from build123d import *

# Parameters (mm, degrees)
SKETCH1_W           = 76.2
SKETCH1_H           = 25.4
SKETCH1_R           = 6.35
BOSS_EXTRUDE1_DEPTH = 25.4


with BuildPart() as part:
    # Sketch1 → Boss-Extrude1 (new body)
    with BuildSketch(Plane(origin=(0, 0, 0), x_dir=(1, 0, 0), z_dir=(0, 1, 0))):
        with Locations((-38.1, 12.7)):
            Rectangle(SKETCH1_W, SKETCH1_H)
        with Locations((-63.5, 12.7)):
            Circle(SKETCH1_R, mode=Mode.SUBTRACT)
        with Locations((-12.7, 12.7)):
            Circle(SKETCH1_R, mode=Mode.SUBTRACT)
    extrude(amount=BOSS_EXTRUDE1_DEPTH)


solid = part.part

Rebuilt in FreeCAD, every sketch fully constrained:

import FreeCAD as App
import Part
import Sketcher
Q = App.Units.Quantity

doc = App.newDocument("Part")
body = doc.addObject("PartDesign::Body", "Body")

sketch1 = doc.addObject("Sketcher::SketchObject", "Sketch")
body.addObject(sketch1)
sketch1.AttachmentSupport = (doc.XZ_Plane, [""])
sketch1.MapMode = "FlatFace"
sketch1.addGeometry([
    Part.LineSegment(App.Vector(-76.2, -25.4, 0), App.Vector(-76.2, 0, 0)),
    Part.LineSegment(App.Vector(-76.2, 0, 0), App.Vector(0, 0, 0)),
    Part.LineSegment(App.Vector(0, 0, 0), App.Vector(0, -25.4, 0)),
    Part.LineSegment(App.Vector(0, -25.4, 0), App.Vector(-76.2, -25.4, 0)),
    Part.Circle(App.Vector(-63.5, -12.7, 0), App.Vector(0, 0, 1), 6.35),
    Part.Circle(App.Vector(-12.7, -12.7, 0), App.Vector(0, 0, 1), 6.35),
], False)
sketch1.addConstraint([
    Sketcher.Constraint("Coincident", 0, 2, 1, 1),
    Sketcher.Constraint("Coincident", 1, 2, 2, 1),
    Sketcher.Constraint("Coincident", 2, 2, 3, 1),
    Sketcher.Constraint("Coincident", 3, 2, 0, 1),
    Sketcher.Constraint("Vertical", 0),
    Sketcher.Constraint("Horizontal", 1),
    Sketcher.Constraint("Vertical", 2),
    Sketcher.Constraint("Horizontal", 3),
    Sketcher.Constraint("Coincident", 1, 2, -1, 1),
    Sketcher.Constraint("Equal", 4, 5),
    Sketcher.Constraint("Horizontal", 4, 3, 5, 3),
    Sketcher.Constraint("Diameter", 4, Q("0.5 in")),
    Sketcher.Constraint("DistanceX", 1, 1, 1, 2, Q("3 in")),
    Sketcher.Constraint("DistanceY", 0, 1, 0, 2, Q("1 in")),
    Sketcher.Constraint("DistanceX", 4, 3, 5, 3, Q("2 in")),
    Sketcher.Constraint("DistanceX", 4, 3, -1, 1, Q("2.5 in")),
    Sketcher.Constraint("DistanceY", 4, 3, -1, 1, Q("0.5 in")),
])
pad1 = doc.addObject("PartDesign::Pad", "Pad")
body.addObject(pad1)
pad1.Profile = sketch1
pad1.Length = Q("1 in")
pad1.Reversed = True

doc.recompute()
